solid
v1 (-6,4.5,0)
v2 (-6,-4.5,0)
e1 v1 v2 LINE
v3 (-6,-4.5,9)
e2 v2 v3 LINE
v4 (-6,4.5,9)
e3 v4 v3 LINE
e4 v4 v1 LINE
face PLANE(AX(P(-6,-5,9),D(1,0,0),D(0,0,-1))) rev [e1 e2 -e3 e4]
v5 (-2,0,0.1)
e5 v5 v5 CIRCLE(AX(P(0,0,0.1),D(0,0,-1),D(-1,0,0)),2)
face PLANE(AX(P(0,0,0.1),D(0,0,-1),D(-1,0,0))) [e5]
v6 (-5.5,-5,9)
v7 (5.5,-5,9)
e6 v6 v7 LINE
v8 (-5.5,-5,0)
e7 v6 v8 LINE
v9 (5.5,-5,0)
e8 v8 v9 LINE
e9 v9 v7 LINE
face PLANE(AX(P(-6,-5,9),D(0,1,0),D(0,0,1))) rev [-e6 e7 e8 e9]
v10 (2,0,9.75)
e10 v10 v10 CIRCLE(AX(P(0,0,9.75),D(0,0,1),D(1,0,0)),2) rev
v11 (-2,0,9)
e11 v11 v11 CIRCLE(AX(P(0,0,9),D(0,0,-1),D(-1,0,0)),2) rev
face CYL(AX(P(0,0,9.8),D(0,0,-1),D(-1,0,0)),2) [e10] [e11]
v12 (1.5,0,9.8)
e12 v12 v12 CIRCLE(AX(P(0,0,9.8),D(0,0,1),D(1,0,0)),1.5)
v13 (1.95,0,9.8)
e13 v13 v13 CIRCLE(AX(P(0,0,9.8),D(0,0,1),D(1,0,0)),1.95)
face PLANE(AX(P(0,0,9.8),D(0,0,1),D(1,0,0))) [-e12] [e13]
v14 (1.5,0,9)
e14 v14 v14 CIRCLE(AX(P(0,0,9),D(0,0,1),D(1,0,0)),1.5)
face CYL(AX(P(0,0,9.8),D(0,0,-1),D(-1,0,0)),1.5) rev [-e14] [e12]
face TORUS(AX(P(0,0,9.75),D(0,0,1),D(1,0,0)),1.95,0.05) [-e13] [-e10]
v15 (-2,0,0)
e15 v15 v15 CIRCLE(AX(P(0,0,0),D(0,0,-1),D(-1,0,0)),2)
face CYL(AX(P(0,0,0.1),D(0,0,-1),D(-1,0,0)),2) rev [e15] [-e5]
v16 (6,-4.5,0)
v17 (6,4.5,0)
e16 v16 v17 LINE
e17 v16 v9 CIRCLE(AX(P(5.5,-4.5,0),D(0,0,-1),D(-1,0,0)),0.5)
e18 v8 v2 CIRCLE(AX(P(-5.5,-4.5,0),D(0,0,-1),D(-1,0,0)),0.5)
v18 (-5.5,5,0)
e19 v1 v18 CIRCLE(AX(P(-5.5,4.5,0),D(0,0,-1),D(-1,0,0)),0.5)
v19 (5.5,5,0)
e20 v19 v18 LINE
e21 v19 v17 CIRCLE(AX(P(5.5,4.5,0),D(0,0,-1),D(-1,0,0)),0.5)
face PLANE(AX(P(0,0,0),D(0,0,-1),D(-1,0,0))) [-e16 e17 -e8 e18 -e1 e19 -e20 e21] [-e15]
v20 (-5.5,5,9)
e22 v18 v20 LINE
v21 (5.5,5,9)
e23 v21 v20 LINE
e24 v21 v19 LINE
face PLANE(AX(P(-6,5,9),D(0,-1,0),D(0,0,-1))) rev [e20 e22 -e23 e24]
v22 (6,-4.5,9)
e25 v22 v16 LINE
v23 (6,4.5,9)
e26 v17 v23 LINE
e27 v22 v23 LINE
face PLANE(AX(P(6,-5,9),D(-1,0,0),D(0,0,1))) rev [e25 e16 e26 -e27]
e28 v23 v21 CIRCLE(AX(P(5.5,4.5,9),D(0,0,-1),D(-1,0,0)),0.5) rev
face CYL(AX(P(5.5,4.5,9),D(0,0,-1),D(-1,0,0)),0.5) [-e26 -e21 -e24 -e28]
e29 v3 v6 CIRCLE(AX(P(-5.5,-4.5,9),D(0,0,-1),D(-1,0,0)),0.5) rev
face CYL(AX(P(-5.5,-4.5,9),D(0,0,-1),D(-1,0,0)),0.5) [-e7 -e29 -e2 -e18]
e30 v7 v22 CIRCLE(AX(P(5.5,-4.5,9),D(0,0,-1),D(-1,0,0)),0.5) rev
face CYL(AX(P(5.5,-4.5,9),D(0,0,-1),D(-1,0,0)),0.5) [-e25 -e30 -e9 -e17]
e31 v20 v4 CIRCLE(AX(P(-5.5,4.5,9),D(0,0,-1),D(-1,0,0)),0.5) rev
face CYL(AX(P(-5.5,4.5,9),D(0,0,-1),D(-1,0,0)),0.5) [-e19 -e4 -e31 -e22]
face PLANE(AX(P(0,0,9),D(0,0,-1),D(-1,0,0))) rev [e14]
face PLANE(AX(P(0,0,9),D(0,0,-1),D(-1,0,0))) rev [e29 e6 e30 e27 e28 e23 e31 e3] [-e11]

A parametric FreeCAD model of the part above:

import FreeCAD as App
import Part
import Sketcher

V = App.Vector


def edges_at(feature, points):
    """Names of the edges that pass closest to the given points."""
    edges = feature.Shape.Edges
    near = lambda p: min(range(len(edges)), key=lambda i: edges[i].distToShape(Part.Vertex(*p))[0])
    return sorted({f"Edge{near(p) + 1}" for p in points})


def add_polygon(sketch, points):
    """Adds a closed chain of lines whose ends are joined by coincident constraints."""
    first, n = sketch.GeometryCount, len(points)
    for a, b in zip(points, points[1:] + points[:1]):
        sketch.addGeometry(Part.LineSegment(App.Vector(*a, 0), App.Vector(*b, 0)), False)
    for i in range(n):
        sketch.addConstraint(Sketcher.Constraint("Coincident", first + i, 2, first + (i + 1) % n, 1))

doc = App.newDocument("Part")
body = doc.addObject("PartDesign::Body", "Body")

sketch1 = doc.addObject("Sketcher::SketchObject", "Sketch")
body.addObject(sketch1)
sketch1.AttachmentSupport = (doc.XY_Plane, [""])
sketch1.MapMode = "FlatFace"
add_polygon(sketch1, [(-6, 5), (-6, -5), (6, -5), (6, 5)])
sketch1.addConstraint([
    Sketcher.Constraint("Vertical", 0),
    Sketcher.Constraint("Horizontal", 1),
    Sketcher.Constraint("Vertical", 2),
    Sketcher.Constraint("Horizontal", 3),
    Sketcher.Constraint("Symmetric", 0, 2, 2, 2, -1, 1),
    Sketcher.Constraint("DistanceX", 1, 1, 1, 2, 12.0),
    Sketcher.Constraint("DistanceY", 0, 2, 0, 1, 10.0),
])
pad1 = doc.addObject("PartDesign::Pad", "Pad")
body.addObject(pad1)
pad1.Profile = sketch1
pad1.Length = 9
doc.recompute()

fillet = doc.addObject("PartDesign::Fillet", "Fillet")
body.addObject(fillet)
fillet.Base = (pad1, edges_at(pad1, [
    (6, -5, 4.5),
    (-6, -5, 4.5),
    (-6, 5, 4.5),
    (6, 5, 4.5),
]))
fillet.Radius = 0.5

sketch2 = doc.addObject("Sketcher::SketchObject", "Sketch001")
body.addObject(sketch2)
sketch2.AttachmentSupport = (doc.XY_Plane, [""])
sketch2.MapMode = "FlatFace"
sketch2.AttachmentOffset = App.Placement(V(0, 0, 9), App.Rotation())
sketch2.addGeometry([
    Part.Circle(V(0, 0, 0), V(0, 0, 1), 2),
    Part.Circle(V(0, 0, 0), V(0, 0, 1), 1.5),
], False)
sketch2.addConstraint([
    Sketcher.Constraint("Coincident", 0, 3, -1, 1),
    Sketcher.Constraint("Coincident", 1, 3, -1, 1),
    Sketcher.Constraint("Diameter", 0, 4.0),
    Sketcher.Constraint("Diameter", 1, 3.0),
])
pad2 = doc.addObject("PartDesign::Pad", "Pad001")
body.addObject(pad2)
pad2.Profile = sketch2
pad2.Length = 0.8
doc.recompute()

fillet2 = doc.addObject("PartDesign::Fillet", "Fillet001")
body.addObject(fillet2)
fillet2.Base = (pad2, edges_at(pad2, [(-2, 0, 9.8)]))
fillet2.Radius = 0.05

sketch3 = doc.addObject("Sketcher::SketchObject", "Sketch002")
body.addObject(sketch3)
sketch3.AttachmentSupport = (doc.XY_Plane, [""])
sketch3.MapMode = "FlatFace"
sketch3.addGeometry(Part.Circle(V(0, 0, 0), V(0, 0, 1), 2), False)
sketch3.addConstraint([
    Sketcher.Constraint("Coincident", 0, 3, -1, 1),
    Sketcher.Constraint("Diameter", 0, 4.0),
])
pocket1 = doc.addObject("PartDesign::Pocket", "Pocket")
body.addObject(pocket1)
pocket1.Profile = sketch3
pocket1.Length = 0.1
pocket1.Reversed = True

doc.recompute()
